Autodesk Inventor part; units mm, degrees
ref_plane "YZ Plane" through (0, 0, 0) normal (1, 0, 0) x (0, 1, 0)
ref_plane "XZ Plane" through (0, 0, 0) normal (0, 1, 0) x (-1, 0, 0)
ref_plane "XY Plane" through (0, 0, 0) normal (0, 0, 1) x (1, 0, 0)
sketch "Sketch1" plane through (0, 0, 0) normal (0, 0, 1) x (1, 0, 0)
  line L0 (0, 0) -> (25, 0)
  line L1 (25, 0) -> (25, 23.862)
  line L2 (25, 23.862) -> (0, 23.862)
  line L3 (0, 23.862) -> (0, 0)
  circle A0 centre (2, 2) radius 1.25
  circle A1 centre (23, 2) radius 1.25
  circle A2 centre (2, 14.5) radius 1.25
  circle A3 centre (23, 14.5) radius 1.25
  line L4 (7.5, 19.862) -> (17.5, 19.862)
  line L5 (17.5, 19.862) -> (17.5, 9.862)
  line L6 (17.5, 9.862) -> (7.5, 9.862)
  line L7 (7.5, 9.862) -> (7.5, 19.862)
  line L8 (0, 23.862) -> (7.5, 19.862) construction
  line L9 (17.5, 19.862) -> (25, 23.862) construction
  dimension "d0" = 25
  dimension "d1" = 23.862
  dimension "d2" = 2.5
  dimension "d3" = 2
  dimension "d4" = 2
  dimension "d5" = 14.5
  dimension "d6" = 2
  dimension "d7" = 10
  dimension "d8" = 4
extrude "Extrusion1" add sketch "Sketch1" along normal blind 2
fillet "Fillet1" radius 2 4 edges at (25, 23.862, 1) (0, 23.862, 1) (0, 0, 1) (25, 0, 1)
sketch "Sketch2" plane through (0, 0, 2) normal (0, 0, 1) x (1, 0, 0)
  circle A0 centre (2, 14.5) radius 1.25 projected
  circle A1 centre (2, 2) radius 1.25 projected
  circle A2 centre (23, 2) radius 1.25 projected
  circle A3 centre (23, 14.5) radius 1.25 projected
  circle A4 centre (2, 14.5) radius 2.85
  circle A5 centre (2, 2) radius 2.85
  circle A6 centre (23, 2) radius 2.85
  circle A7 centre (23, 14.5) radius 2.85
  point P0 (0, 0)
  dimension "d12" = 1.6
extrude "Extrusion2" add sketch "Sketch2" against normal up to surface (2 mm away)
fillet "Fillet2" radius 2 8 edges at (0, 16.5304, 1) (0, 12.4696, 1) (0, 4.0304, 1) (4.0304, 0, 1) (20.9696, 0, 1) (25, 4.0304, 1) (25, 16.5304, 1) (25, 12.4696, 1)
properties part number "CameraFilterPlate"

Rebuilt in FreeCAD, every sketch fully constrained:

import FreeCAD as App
import Part
import Sketcher
from FreeCAD import Vector


def edges_at(feature, points):
    """Names of the edges that pass closest to the given points."""
    edges = feature.Shape.Edges
    near = lambda p: min(range(len(edges)), key=lambda i: edges[i].distToShape(Part.Vertex(*p))[0])
    return sorted({f"Edge{near(p) + 1}" for p in points})


def add_polygon(sketch, points):
    """Adds a closed chain of lines whose ends are joined by coincident constraints."""
    first, n = sketch.GeometryCount, len(points)
    for a, b in zip(points, points[1:] + points[:1]):
        sketch.addGeometry(Part.LineSegment(App.Vector(*a, 0), App.Vector(*b, 0)), False)
    for i in range(n):
        sketch.addConstraint(Sketcher.Constraint("Coincident", first + i, 2, first + (i + 1) % n, 1))

doc = App.newDocument("Part")
body = doc.addObject("PartDesign::Body", "Body")

# Sketch on XY plane
sketch1 = body.newObject("Sketcher::SketchObject", "Sketch")
sketch1.AttachmentSupport = (doc.getObject("XY_Plane"), [""])
sketch1.MapMode = "FlatFace"
add_polygon(sketch1, [(0, 23.9), (0, 0), (25, 0), (25, 23.9)])  # lines 0-3
sketch1.addGeometry(Part.Circle(Vector(2, 2, 0), Vector(0, 0, 1), 1.2), False)  # 4
sketch1.addGeometry(Part.Circle(Vector(23, 2, 0), Vector(0, 0, 1), 1.2), False)  # 5
sketch1.addGeometry(Part.Circle(Vector(2, 14.5, 0), Vector(0, 0, 1), 1.2), False)  # 6
add_polygon(sketch1, [(7.5, 9.9), (7.5, 19.9), (17.5, 19.9), (17.5, 9.9)])  # lines 7-10
sketch1.addGeometry(Part.Circle(Vector(23, 14.5, 0), Vector(0, 0, 1), 1.2), False)  # 11
sketch1.addConstraint([
    Sketcher.Constraint("Vertical", 0),
    Sketcher.Constraint("Horizontal", 1),
    Sketcher.Constraint("Vertical", 2),
    Sketcher.Constraint("Horizontal", 3),
    Sketcher.Constraint("Vertical", 7),
    Sketcher.Constraint("Horizontal", 8),
    Sketcher.Constraint("Vertical", 9),
    Sketcher.Constraint("Horizontal", 10),
    Sketcher.Constraint("Coincident", 0, 2, -1, 1),
    Sketcher.Constraint("Equal", 4, 5),
    Sketcher.Constraint("Equal", 5, 6),
    Sketcher.Constraint("Equal", 6, 11),
    Sketcher.Constraint("Horizontal", 4, 3, 5, 3),
    Sketcher.Constraint("Horizontal", 6, 3, 11, 3),
    Sketcher.Constraint("Vertical", 4, 3, 6, 3),
    Sketcher.Constraint("Vertical", 5, 3, 11, 3),
    Sketcher.Constraint("Equal", 10, 7),
    Sketcher.Constraint("Diameter", 4, 2.5),
    Sketcher.Constraint("DistanceX", 1, 1, 1, 2, 25.0),
    Sketcher.Constraint("DistanceX", 8, 1, 8, 2, 10.0),
    Sketcher.Constraint("DistanceX", -1, 1, 4, 3, 2.0),
    Sketcher.Constraint("DistanceY", -1, 1, 4, 3, 2.0),
    Sketcher.Constraint("DistanceX", 5, 3, 1, 2, 2.0),
    Sketcher.Constraint("DistanceY", 7, 2, 3, 2, 4.0),
    Sketcher.Constraint("DistanceY", -1, 1, 6, 3, 14.5),
    Sketcher.Constraint("DistanceY", 0, 2, 0, 1, 23.862),
    Sketcher.Constraint("DistanceX", -1, 1, 7, 2, 7.5),
])
pad1 = body.newObject("PartDesign::Pad", "Pad")
pad1.Profile = sketch1
pad1.Length = 2
doc.recompute()

fillet = body.newObject("PartDesign::Fillet", "Fillet")
fillet.Base = (pad1, edges_at(pad1, [
    (25, 23.862, 1),
    (0, 23.862, 1),
    (0, 0, 1),
    (25, 0, 1),
]))
fillet.Radius = 2

# Sketch on XY plane
sketch2 = body.newObject("Sketcher::SketchObject", "Sketch001")
sketch2.AttachmentSupport = (doc.getObject("XY_Plane"), [""])
sketch2.MapMode = "FlatFace"
sketch2.AttachmentOffset = App.Placement(Vector(0, 0, 2), App.Rotation())
sketch2.addGeometry([
    Part.Circle(Vector(2, 14.5, 0), Vector(0, 0, 1), 2.9),  # 0
    Part.Circle(Vector(2, 14.5, 0), Vector(0, 0, 1), 1.2),  # 1
    Part.Circle(Vector(2, 2, 0), Vector(0, 0, 1), 2.9),  # 2
    Part.Circle(Vector(2, 2, 0), Vector(0, 0, 1), 1.2),  # 3
    Part.Circle(Vector(23, 2, 0), Vector(0, 0, 1), 2.9),  # 4
    Part.Circle(Vector(23, 2, 0), Vector(0, 0, 1), 1.2),  # 5
    Part.Circle(Vector(23, 14.5, 0), Vector(0, 0, 1), 2.9),  # 6
    Part.Circle(Vector(23, 14.5, 0), Vector(0, 0, 1), 1.2),  # 7
], False)
sketch2.addConstraint([
    Sketcher.Constraint("Coincident", 1, 3, 0, 3),
    Sketcher.Constraint("Coincident", 3, 3, 2, 3),
    Sketcher.Constraint("Coincident", 5, 3, 4, 3),
    Sketcher.Constraint("Coincident", 7, 3, 6, 3),
    Sketcher.Constraint("Equal", 0, 2),
    Sketcher.Constraint("Equal", 1, 3),
    Sketcher.Constraint("Equal", 2, 4),
    Sketcher.Constraint("Equal", 3, 5),
    Sketcher.Constraint("Equal", 4, 6),
    Sketcher.Constraint("Equal", 5, 7),
    Sketcher.Constraint("Horizontal", 3, 3, 4, 3),
    Sketcher.Constraint("Horizontal", 1, 3, 6, 3),
    Sketcher.Constraint("Vertical", 1, 3, 2, 3),
    Sketcher.Constraint("Vertical", 5, 3, 6, 3),
    Sketcher.Constraint("Diameter", 0, 5.7),
    Sketcher.Constraint("Diameter", 1, 2.5),
    Sketcher.Constraint("DistanceX", -1, 1, 0, 3, 2.0),
    Sketcher.Constraint("DistanceY", -1, 1, 2, 3, 2.0),
    Sketcher.Constraint("DistanceX", -1, 1, 4, 3, 23.0),
    Sketcher.Constraint("DistanceY", -1, 1, 0, 3, 14.5),
])
pad2 = body.newObject("PartDesign::Pad", "Pad001")
pad2.Profile = sketch2
pad2.Length = 2
pad2.Reversed = True
doc.recompute()

fillet2 = body.newObject("PartDesign::Fillet", "Fillet001")
fillet2.Base = (pad2, edges_at(pad2, [
    (0, 16.53, 1),
    (0, 12.47, 1),
    (0, 4.03, 1),
    (4.03, 0, 1),
    (20.97, 0, 1),
    (25, 4.03, 1),
    (25, 16.53, 1),
    (25, 12.47, 1),
]))
fillet2.Radius = 2

doc.recompute()
